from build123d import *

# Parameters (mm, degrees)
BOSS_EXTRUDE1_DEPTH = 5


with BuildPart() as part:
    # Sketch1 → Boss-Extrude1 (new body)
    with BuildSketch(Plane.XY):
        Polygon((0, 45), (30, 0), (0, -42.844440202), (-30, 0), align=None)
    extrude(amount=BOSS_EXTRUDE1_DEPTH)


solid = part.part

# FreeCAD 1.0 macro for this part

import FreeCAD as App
import Part
import Sketcher

V = App.Vector
Q = App.Units.Quantity

doc = App.newDocument("Part")
params = doc.addObject("Spreadsheet::Sheet", "Params")
for row, (alias, value) in enumerate([
    ("pad1_length", "5 mm"),
], start=1):
    params.set(f"A{row}", alias)
    params.set(f"B{row}", "=" + value)
    params.setAlias(f"B{row}", alias)

body = doc.addObject("PartDesign::Body", "Body")

sketch1 = body.newObject("Sketcher::SketchObject", "Sketch")
sketch1.AttachmentSupport = (doc.getObject("XY_Plane"), [""])
sketch1.MapMode = "FlatFace"
sketch1.addGeometry(Part.LineSegment(V(30, 0, 0), V(0, 45, 0)), False)
sketch1.addGeometry(Part.LineSegment(V(0, 45, 0), V(-30, 0, 0)), False)
sketch1.addGeometry(Part.LineSegment(V(-30, 0, 0), V(0, -42.84444, 0)), False)
sketch1.addGeometry(Part.LineSegment(V(0, -42.84444, 0), V(30, 0, 0)), False)
sketch1.addConstraint(Sketcher.Constraint("Coincident", 0, 2, 1, 1))
sketch1.addConstraint(Sketcher.Constraint("Coincident", 1, 2, 2, 1))
sketch1.addConstraint(Sketcher.Constraint("Coincident", 2, 2, 3, 1))
sketch1.addConstraint(Sketcher.Constraint("Coincident", 3, 2, 0, 1))
sketch1.addConstraint(Sketcher.Constraint("Symmetric", 1, 2, 3, 2, -1, 1))
sketch1.addConstraint(Sketcher.Constraint("PointOnObject", 0, 2, -2))
sketch1.addConstraint(Sketcher.Constraint("PointOnObject", 1, 2, -1))
sketch1.addConstraint(Sketcher.Constraint("PointOnObject", 2, 2, -2))
sketch1.addConstraint(Sketcher.Constraint("Angle", 2, Q("-55 deg")))
sketch1.addConstraint(Sketcher.Constraint("DistanceY", -1, 1, 0, 2, 45.0))
sketch1.addConstraint(Sketcher.Constraint("DistanceX", 1, 2, -1, 1, 30.0))
pad1 = body.newObject("PartDesign::Pad", "Pad")
pad1.Profile = sketch1
pad1.setExpression("Length", "Params.pad1_length")

doc.recompute()
